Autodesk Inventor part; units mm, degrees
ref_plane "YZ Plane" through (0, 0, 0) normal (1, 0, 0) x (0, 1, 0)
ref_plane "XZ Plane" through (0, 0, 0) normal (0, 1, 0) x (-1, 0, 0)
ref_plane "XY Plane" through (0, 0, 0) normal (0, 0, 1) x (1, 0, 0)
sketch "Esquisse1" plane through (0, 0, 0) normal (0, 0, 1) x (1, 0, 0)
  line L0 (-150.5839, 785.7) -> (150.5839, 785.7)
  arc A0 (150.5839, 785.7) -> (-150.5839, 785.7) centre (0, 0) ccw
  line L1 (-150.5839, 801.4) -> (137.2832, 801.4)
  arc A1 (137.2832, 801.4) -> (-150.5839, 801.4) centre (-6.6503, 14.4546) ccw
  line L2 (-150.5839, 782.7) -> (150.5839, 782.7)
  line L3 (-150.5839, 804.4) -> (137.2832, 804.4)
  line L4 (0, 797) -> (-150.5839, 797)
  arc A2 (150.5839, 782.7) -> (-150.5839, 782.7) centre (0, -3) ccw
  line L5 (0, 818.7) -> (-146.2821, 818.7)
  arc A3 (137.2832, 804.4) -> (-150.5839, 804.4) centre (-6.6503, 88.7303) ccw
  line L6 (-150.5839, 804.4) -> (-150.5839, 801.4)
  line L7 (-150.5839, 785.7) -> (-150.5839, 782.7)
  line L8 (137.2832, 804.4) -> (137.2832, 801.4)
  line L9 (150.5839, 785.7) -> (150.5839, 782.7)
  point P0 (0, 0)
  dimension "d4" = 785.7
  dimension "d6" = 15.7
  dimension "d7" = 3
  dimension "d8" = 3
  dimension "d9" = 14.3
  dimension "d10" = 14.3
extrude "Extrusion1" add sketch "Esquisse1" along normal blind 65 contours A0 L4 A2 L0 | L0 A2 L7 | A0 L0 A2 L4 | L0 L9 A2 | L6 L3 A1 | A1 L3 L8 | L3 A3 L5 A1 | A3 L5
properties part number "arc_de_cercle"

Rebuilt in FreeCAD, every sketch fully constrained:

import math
import FreeCAD as App
import Part
import Sketcher
from FreeCAD import Vector
Q = App.Units.Quantity

doc = App.newDocument("Part")
params = doc.addObject("Spreadsheet::Sheet", "Params")
for row, (alias, value) in enumerate([
    ("sketch1_height", "3 mm"),
    ("sketch1_radius", "800 mm"),
    ("sketch1_radius2", "730 mm"),
    ("pad1_length", "65 mm"),
], start=1):
    params.set(f"A{row}", alias)
    params.set(f"B{row}", "=" + value)
    params.setAlias(f"B{row}", alias)

body = doc.addObject("PartDesign::Body", "Body")
body.AllowCompound = True

sketch1 = body.newObject("Sketcher::SketchObject", "Sketch")
sketch1.AttachmentSupport = (doc.getObject("XY_Plane"), [""])
sketch1.MapMode = "FlatFace"
sketch1.addGeometry([
    Part.LineSegment(Vector(-150.5839, 785.7, 0), Vector(-150.5839, 782.7, 0)),
    Part.ArcOfCircle(Part.Circle(Vector(0, -3, 0), Vector(0, 0, 1), 800.000001), math.radians(79.1505), math.radians(100.8495)),
    Part.LineSegment(Vector(150.5839, 782.7, 0), Vector(150.5839, 785.7, 0)),
    Part.ArcOfCircle(Part.Circle(Vector(0, 0, 0), Vector(0, 0, 1), 800.000001), math.radians(79.1505), math.radians(100.8495)),
    Part.LineSegment(Vector(-150.5839, 804.4, 0), Vector(-150.5839, 801.4, 0)),
    Part.ArcOfCircle(Part.Circle(Vector(-6.6503, 14.4546, 0), Vector(0, 0, 1), 799.999947), math.radians(79.635081), math.radians(100.364926)),
    Part.LineSegment(Vector(137.2832, 801.4, 0), Vector(137.2832, 804.4, 0)),
    Part.ArcOfCircle(Part.Circle(Vector(-6.6503, 88.7303, 0), Vector(0, 0, 1), 729.999981), math.radians(78.628531), math.radians(101.371477)),
], False)
sketch1.addConstraint([
    Sketcher.Constraint("Coincident", 0, 2, 1, 2),
    Sketcher.Constraint("Coincident", 1, 1, 2, 1),
    Sketcher.Constraint("Coincident", 2, 2, 3, 1),
    Sketcher.Constraint("Coincident", 3, 2, 0, 1),
    Sketcher.Constraint("Coincident", 4, 2, 5, 2),
    Sketcher.Constraint("Coincident", 5, 1, 6, 1),
    Sketcher.Constraint("Coincident", 6, 2, 7, 1),
    Sketcher.Constraint("Coincident", 7, 2, 4, 1),
    Sketcher.Constraint("Vertical", 0),
    Sketcher.Constraint("Vertical", 2),
    Sketcher.Constraint("Vertical", 4),
    Sketcher.Constraint("Vertical", 6),
    Sketcher.Constraint("Coincident", 3, 3, -1, 1),
    Sketcher.Constraint("Equal", 1, 3),
    Sketcher.Constraint("Equal", 3, 5),
    Sketcher.Constraint("PointOnObject", 1, 3, -2),
    Sketcher.Constraint("Horizontal", 4, 2, 5, 1),
    Sketcher.Constraint("Horizontal", 6, 2, 7, 2),
    Sketcher.Constraint("Equal", 2, 4),
    Sketcher.Constraint("DistanceY", 0, 2, 0, 1, Q("3 mm")),
    Sketcher.Constraint("Radius", 1, Q("800 mm")),
    Sketcher.Constraint("Radius", 7, Q("730 mm")),
    Sketcher.Constraint("DistanceY", 0, 2, 2, 2, Q("3 mm")),
    Sketcher.Constraint("DistanceY", -1, 1, 2, 2, Q("785.7 mm")),
    Sketcher.Constraint("DistanceY", 3, 2, 4, 2, Q("15.7 mm")),
    Sketcher.Constraint("DistanceX", 4, 2, -1, 1, Q("150.584 mm")),
    Sketcher.Constraint("DistanceX", 4, 2, 6, 2, Q("287.867 mm")),
])
sketch1.setExpression("Constraints[19]", "Params.sketch1_height")
sketch1.setExpression("Constraints[20]", "Params.sketch1_radius")
sketch1.setExpression("Constraints[21]", "Params.sketch1_radius2")
pad1 = body.newObject("PartDesign::Pad", "Pad")
pad1.Profile = sketch1
pad1.setExpression("Length", "Params.pad1_length")

doc.recompute()
